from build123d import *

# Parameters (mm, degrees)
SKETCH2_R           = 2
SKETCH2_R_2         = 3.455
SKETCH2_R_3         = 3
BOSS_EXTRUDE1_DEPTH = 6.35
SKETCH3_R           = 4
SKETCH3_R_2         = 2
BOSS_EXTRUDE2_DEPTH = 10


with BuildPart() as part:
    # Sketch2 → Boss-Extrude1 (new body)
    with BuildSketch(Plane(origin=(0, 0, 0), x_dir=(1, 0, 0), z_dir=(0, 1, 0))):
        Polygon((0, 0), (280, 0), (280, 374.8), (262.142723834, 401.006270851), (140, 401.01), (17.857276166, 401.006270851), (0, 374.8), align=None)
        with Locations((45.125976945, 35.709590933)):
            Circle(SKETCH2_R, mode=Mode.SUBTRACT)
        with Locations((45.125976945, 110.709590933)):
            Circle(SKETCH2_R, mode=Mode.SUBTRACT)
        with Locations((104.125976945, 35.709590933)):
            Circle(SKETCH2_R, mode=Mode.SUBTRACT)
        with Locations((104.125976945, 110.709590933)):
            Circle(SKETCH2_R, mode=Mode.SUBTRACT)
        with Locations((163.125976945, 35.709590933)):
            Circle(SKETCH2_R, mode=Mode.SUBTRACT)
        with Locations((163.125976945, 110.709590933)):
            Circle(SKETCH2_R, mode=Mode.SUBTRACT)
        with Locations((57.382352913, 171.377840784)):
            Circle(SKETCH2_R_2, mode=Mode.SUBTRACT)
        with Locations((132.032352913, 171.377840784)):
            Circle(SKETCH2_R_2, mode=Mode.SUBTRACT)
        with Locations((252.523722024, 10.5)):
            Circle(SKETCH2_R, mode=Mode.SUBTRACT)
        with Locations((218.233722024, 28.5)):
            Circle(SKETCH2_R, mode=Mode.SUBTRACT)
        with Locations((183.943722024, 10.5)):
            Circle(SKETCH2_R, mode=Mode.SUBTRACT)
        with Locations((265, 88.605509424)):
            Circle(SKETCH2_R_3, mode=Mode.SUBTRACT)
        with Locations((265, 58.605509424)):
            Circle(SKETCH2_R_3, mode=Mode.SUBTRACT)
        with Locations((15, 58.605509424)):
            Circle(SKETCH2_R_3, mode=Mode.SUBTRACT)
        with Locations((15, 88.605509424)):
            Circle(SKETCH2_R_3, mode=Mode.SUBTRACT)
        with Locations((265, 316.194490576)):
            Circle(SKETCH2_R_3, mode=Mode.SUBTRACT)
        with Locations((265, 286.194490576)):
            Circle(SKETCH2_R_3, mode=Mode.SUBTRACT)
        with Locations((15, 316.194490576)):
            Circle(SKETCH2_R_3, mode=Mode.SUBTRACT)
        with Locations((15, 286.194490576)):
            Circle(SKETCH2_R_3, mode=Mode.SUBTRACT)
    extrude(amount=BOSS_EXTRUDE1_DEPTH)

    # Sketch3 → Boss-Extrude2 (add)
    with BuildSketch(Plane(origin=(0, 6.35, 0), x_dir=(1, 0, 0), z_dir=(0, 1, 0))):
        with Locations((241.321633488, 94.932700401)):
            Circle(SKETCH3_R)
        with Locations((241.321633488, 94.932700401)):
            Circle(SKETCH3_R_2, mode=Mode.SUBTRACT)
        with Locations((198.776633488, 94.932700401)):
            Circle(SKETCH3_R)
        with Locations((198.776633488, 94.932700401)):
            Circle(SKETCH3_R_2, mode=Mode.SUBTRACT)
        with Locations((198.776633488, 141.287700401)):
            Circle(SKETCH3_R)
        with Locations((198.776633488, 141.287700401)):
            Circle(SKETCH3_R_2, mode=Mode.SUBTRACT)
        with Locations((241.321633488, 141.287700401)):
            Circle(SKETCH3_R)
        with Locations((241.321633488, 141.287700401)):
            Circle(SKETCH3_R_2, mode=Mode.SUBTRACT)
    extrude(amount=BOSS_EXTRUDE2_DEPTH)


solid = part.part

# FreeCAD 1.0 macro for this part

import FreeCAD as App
import Part
import Sketcher


def add_polygon(sketch, points):
    """Adds a closed chain of lines whose ends are joined by coincident constraints."""
    first, n = sketch.GeometryCount, len(points)
    for a, b in zip(points, points[1:] + points[:1]):
        sketch.addGeometry(Part.LineSegment(App.Vector(*a, 0), App.Vector(*b, 0)), False)
    for i in range(n):
        sketch.addConstraint(Sketcher.Constraint("Coincident", first + i, 2, first + (i + 1) % n, 1))

doc = App.newDocument("Part")
body = doc.addObject("PartDesign::Body", "Body")

sketch1 = doc.addObject("Sketcher::SketchObject", "Sketch")
body.addObject(sketch1)
sketch1.AttachmentSupport = (doc.XZ_Plane, [""])
sketch1.MapMode = "FlatFace"
add_polygon(sketch1, [(0, 0), (280, 0), (280, -374.8), (262.1, -401), (140, -401), (17.9, -401), (0, -374.8)])
sketch1.addGeometry(Part.Circle(App.Vector(45.1, -35.7, 0), App.Vector(0, 0, 1), 2), False)
sketch1.addGeometry(Part.Circle(App.Vector(15, -58.6, 0), App.Vector(0, 0, 1), 3), False)
sketch1.addGeometry(Part.Circle(App.Vector(104.1, -35.7, 0), App.Vector(0, 0, 1), 2), False)
sketch1.addGeometry(Part.Circle(App.Vector(15, -88.6, 0), App.Vector(0, 0, 1), 3), False)
sketch1.addGeometry(Part.Circle(App.Vector(45.1, -110.7, 0), App.Vector(0, 0, 1), 2), False)
sketch1.addGeometry(Part.Circle(App.Vector(104.1, -110.7, 0), App.Vector(0, 0, 1), 2), False)
sketch1.addGeometry(Part.Circle(App.Vector(163.1, -35.7, 0), App.Vector(0, 0, 1), 2), False)
sketch1.addGeometry(Part.Circle(App.Vector(183.9, -10.5, 0), App.Vector(0, 0, 1), 2), False)
sketch1.addGeometry(Part.Circle(App.Vector(218.2, -28.5, 0), App.Vector(0, 0, 1), 2), False)
sketch1.addGeometry(Part.Circle(App.Vector(252.5, -10.5, 0), App.Vector(0, 0, 1), 2), False)
sketch1.addGeometry(Part.Circle(App.Vector(265, -58.6, 0), App.Vector(0, 0, 1), 3), False)
sketch1.addGeometry(Part.Circle(App.Vector(163.1, -110.7, 0), App.Vector(0, 0, 1), 2), False)
sketch1.addGeometry(Part.Circle(App.Vector(265, -88.6, 0), App.Vector(0, 0, 1), 3), False)
sketch1.addGeometry(Part.Circle(App.Vector(57.4, -171.4, 0), App.Vector(0, 0, 1), 3.5), False)
sketch1.addGeometry(Part.Circle(App.Vector(132, -171.4, 0), App.Vector(0, 0, 1), 3.5), False)
sketch1.addGeometry(Part.Circle(App.Vector(15, -286.2, 0), App.Vector(0, 0, 1), 3), False)
sketch1.addGeometry(Part.Circle(App.Vector(15, -316.2, 0), App.Vector(0, 0, 1), 3), False)
sketch1.addGeometry(Part.Circle(App.Vector(265, -286.2, 0), App.Vector(0, 0, 1), 3), False)
sketch1.addGeometry(Part.Circle(App.Vector(265, -316.2, 0), App.Vector(0, 0, 1), 3), False)
sketch1.addConstraint([
    Sketcher.Constraint("Horizontal", 0),
    Sketcher.Constraint("Vertical", 1),
    Sketcher.Constraint("Vertical", 6),
    Sketcher.Constraint("Coincident", 6, 2, -1, 1),
    Sketcher.Constraint("Equal", 7, 9),
    Sketcher.Constraint("Equal", 8, 10),
    Sketcher.Constraint("Equal", 9, 11),
    Sketcher.Constraint("Equal", 11, 12),
    Sketcher.Constraint("Equal", 12, 13),
    Sketcher.Constraint("Equal", 13, 14),
    Sketcher.Constraint("Equal", 14, 15),
    Sketcher.Constraint("Equal", 15, 16),
    Sketcher.Constraint("Equal", 10, 17),
    Sketcher.Constraint("Equal", 16, 18),
    Sketcher.Constraint("Equal", 17, 19),
    Sketcher.Constraint("Equal", 20, 21),
    Sketcher.Constraint("Equal", 19, 22),
    Sketcher.Constraint("Equal", 22, 23),
    Sketcher.Constraint("Equal", 23, 24),
    Sketcher.Constraint("Equal", 24, 25),
    Sketcher.Constraint("Horizontal", 7, 3, 9, 3),
    Sketcher.Constraint("Horizontal", 11, 3, 12, 3),
    Sketcher.Constraint("Horizontal", 9, 3, 13, 3),
    Sketcher.Constraint("Horizontal", 14, 3, 16, 3),
    Sketcher.Constraint("Horizontal", 8, 3, 17, 3),
    Sketcher.Constraint("Horizontal", 12, 3, 18, 3),
    Sketcher.Constraint("Horizontal", 10, 3, 19, 3),
    Sketcher.Constraint("Horizontal", 20, 3, 21, 3),
    Sketcher.Constraint("Horizontal", 22, 3, 24, 3),
    Sketcher.Constraint("Horizontal", 23, 3, 25, 3),
    Sketcher.Constraint("Horizontal", 2, 2, 4, 2),
    Sketcher.Constraint("Horizontal", 1, 2, 5, 2),
    Sketcher.Constraint("Vertical", 8, 3, 10, 3),
    Sketcher.Constraint("Vertical", 7, 3, 11, 3),
    Sketcher.Constraint("Vertical", 9, 3, 12, 3),
    Sketcher.Constraint("Vertical", 13, 3, 18, 3),
    Sketcher.Constraint("Vertical", 17, 3, 19, 3),
    Sketcher.Constraint("Vertical", 10, 3, 22, 3),
    Sketcher.Constraint("Vertical", 22, 3, 23, 3),
    Sketcher.Constraint("Vertical", 19, 3, 24, 3),
    Sketcher.Constraint("Vertical", 24, 3, 25, 3),
    Sketcher.Constraint("Equal", 3, 4),
    Sketcher.Constraint("Equal", 2, 5),
    Sketcher.Constraint("Diameter", 7, 4.0),
    Sketcher.Constraint("Diameter", 8, 6.0),
    Sketcher.Constraint("Diameter", 20, 6.91),
    Sketcher.Constraint("DistanceX", 0, 1, 0, 2, 280.0),
    Sketcher.Constraint("DistanceY", 1, 2, 1, 1, 374.8),
    Sketcher.Constraint("DistanceX", -1, 1, 8, 3, 15.0),
    Sketcher.Constraint("DistanceX", -1, 1, 17, 3, 265.0),
    Sketcher.Constraint("DistanceX", 7, 3, 9, 3, 59.0),
    Sketcher.Constraint("DistanceY", 10, 3, 8, 3, 30.0),
    Sketcher.Constraint("DistanceY", 11, 3, 7, 3, 75.0),
    Sketcher.Constraint("DistanceX", 9, 3, 13, 3, 59.0),
    Sketcher.Constraint("DistanceY", 15, 3, 14, 3, 18.0),
    Sketcher.Constraint("DistanceY", 23, 3, 22, 3, 30.0),
    Sketcher.Constraint("DistanceY", 14, 3, -1, 1, 10.5),
    Sketcher.Constraint("DistanceY", 3, 2, -1, 1, 401.01),
    Sketcher.Constraint("DistanceX", 14, 3, 15, 3, 34.29),
    Sketcher.Constraint("DistanceX", 15, 3, 16, 3, 34.29),
    Sketcher.Constraint("DistanceX", 20, 3, 21, 3, 74.65),
    Sketcher.Constraint("Distance", 2, 31.712),
    Sketcher.Constraint("DistanceY", 22, 3, 11, 3, 175.4849),
    Sketcher.Constraint("DistanceY", 7, 3, -1, 1, 35.709591),
    Sketcher.Constraint("DistanceY", 8, 3, -1, 1, 58.605509),
    Sketcher.Constraint("DistanceY", 20, 3, -1, 1, 171.377841),
    Sketcher.Constraint("DistanceY", 2, 2, -1, 1, 401.006271),
    Sketcher.Constraint("DistanceX", 21, 3, 2, 2, 130.110371),
    Sketcher.Constraint("DistanceX", -1, 1, 7, 3, 45.125977),
    Sketcher.Constraint("DistanceX", -1, 1, 14, 3, 183.943722),
])
pad1 = doc.addObject("PartDesign::Pad", "Pad")
body.addObject(pad1)
pad1.Profile = sketch1
pad1.Length = 6.35
pad1.Reversed = True

sketch2 = doc.addObject("Sketcher::SketchObject", "Sketch001")
body.addObject(sketch2)
sketch2.AttachmentSupport = (doc.XZ_Plane, [""])
sketch2.MapMode = "FlatFace"
sketch2.AttachmentOffset = App.Placement(App.Vector(0, 0, -6.35), App.Rotation())
sketch2.addGeometry([
    Part.Circle(App.Vector(241.3, -94.9, 0), App.Vector(0, 0, 1), 4),
    Part.Circle(App.Vector(241.3, -94.9, 0), App.Vector(0, 0, 1), 2),
    Part.Circle(App.Vector(198.8, -94.9, 0), App.Vector(0, 0, 1), 4),
    Part.Circle(App.Vector(198.8, -94.9, 0), App.Vector(0, 0, 1), 2),
    Part.Circle(App.Vector(198.8, -141.3, 0), App.Vector(0, 0, 1), 4),
    Part.Circle(App.Vector(198.8, -141.3, 0), App.Vector(0, 0, 1), 2),
    Part.Circle(App.Vector(241.3, -141.3, 0), App.Vector(0, 0, 1), 4),
    Part.Circle(App.Vector(241.3, -141.3, 0), App.Vector(0, 0, 1), 2),
], False)
sketch2.addConstraint([
    Sketcher.Constraint("Coincident", 1, 3, 0, 3),
    Sketcher.Constraint("Coincident", 3, 3, 2, 3),
    Sketcher.Constraint("Coincident", 5, 3, 4, 3),
    Sketcher.Constraint("Coincident", 7, 3, 6, 3),
    Sketcher.Constraint("Equal", 0, 2),
    Sketcher.Constraint("Equal", 1, 3),
    Sketcher.Constraint("Equal", 2, 4),
    Sketcher.Constraint("Equal", 3, 5),
    Sketcher.Constraint("Equal", 4, 6),
    Sketcher.Constraint("Equal", 5, 7),
    Sketcher.Constraint("Horizontal", 1, 3, 2, 3),
    Sketcher.Constraint("Horizontal", 5, 3, 6, 3),
    Sketcher.Constraint("Vertical", 3, 3, 4, 3),
    Sketcher.Constraint("Vertical", 1, 3, 6, 3),
    Sketcher.Constraint("Diameter", 0, 8.0),
    Sketcher.Constraint("Diameter", 1, 4.0),
    Sketcher.Constraint("DistanceX", 2, 3, 0, 3, 42.545),
    Sketcher.Constraint("DistanceY", 4, 3, 2, 3, 46.355),
    Sketcher.Constraint("DistanceY", 0, 3, -1, 1, 94.9327),
    Sketcher.Constraint("DistanceX", -1, 1, 0, 3, 241.321633),
])
pad2 = doc.addObject("PartDesign::Pad", "Pad001")
body.addObject(pad2)
pad2.Profile = sketch2
pad2.Length = 10
pad2.Reversed = True

doc.recompute()
